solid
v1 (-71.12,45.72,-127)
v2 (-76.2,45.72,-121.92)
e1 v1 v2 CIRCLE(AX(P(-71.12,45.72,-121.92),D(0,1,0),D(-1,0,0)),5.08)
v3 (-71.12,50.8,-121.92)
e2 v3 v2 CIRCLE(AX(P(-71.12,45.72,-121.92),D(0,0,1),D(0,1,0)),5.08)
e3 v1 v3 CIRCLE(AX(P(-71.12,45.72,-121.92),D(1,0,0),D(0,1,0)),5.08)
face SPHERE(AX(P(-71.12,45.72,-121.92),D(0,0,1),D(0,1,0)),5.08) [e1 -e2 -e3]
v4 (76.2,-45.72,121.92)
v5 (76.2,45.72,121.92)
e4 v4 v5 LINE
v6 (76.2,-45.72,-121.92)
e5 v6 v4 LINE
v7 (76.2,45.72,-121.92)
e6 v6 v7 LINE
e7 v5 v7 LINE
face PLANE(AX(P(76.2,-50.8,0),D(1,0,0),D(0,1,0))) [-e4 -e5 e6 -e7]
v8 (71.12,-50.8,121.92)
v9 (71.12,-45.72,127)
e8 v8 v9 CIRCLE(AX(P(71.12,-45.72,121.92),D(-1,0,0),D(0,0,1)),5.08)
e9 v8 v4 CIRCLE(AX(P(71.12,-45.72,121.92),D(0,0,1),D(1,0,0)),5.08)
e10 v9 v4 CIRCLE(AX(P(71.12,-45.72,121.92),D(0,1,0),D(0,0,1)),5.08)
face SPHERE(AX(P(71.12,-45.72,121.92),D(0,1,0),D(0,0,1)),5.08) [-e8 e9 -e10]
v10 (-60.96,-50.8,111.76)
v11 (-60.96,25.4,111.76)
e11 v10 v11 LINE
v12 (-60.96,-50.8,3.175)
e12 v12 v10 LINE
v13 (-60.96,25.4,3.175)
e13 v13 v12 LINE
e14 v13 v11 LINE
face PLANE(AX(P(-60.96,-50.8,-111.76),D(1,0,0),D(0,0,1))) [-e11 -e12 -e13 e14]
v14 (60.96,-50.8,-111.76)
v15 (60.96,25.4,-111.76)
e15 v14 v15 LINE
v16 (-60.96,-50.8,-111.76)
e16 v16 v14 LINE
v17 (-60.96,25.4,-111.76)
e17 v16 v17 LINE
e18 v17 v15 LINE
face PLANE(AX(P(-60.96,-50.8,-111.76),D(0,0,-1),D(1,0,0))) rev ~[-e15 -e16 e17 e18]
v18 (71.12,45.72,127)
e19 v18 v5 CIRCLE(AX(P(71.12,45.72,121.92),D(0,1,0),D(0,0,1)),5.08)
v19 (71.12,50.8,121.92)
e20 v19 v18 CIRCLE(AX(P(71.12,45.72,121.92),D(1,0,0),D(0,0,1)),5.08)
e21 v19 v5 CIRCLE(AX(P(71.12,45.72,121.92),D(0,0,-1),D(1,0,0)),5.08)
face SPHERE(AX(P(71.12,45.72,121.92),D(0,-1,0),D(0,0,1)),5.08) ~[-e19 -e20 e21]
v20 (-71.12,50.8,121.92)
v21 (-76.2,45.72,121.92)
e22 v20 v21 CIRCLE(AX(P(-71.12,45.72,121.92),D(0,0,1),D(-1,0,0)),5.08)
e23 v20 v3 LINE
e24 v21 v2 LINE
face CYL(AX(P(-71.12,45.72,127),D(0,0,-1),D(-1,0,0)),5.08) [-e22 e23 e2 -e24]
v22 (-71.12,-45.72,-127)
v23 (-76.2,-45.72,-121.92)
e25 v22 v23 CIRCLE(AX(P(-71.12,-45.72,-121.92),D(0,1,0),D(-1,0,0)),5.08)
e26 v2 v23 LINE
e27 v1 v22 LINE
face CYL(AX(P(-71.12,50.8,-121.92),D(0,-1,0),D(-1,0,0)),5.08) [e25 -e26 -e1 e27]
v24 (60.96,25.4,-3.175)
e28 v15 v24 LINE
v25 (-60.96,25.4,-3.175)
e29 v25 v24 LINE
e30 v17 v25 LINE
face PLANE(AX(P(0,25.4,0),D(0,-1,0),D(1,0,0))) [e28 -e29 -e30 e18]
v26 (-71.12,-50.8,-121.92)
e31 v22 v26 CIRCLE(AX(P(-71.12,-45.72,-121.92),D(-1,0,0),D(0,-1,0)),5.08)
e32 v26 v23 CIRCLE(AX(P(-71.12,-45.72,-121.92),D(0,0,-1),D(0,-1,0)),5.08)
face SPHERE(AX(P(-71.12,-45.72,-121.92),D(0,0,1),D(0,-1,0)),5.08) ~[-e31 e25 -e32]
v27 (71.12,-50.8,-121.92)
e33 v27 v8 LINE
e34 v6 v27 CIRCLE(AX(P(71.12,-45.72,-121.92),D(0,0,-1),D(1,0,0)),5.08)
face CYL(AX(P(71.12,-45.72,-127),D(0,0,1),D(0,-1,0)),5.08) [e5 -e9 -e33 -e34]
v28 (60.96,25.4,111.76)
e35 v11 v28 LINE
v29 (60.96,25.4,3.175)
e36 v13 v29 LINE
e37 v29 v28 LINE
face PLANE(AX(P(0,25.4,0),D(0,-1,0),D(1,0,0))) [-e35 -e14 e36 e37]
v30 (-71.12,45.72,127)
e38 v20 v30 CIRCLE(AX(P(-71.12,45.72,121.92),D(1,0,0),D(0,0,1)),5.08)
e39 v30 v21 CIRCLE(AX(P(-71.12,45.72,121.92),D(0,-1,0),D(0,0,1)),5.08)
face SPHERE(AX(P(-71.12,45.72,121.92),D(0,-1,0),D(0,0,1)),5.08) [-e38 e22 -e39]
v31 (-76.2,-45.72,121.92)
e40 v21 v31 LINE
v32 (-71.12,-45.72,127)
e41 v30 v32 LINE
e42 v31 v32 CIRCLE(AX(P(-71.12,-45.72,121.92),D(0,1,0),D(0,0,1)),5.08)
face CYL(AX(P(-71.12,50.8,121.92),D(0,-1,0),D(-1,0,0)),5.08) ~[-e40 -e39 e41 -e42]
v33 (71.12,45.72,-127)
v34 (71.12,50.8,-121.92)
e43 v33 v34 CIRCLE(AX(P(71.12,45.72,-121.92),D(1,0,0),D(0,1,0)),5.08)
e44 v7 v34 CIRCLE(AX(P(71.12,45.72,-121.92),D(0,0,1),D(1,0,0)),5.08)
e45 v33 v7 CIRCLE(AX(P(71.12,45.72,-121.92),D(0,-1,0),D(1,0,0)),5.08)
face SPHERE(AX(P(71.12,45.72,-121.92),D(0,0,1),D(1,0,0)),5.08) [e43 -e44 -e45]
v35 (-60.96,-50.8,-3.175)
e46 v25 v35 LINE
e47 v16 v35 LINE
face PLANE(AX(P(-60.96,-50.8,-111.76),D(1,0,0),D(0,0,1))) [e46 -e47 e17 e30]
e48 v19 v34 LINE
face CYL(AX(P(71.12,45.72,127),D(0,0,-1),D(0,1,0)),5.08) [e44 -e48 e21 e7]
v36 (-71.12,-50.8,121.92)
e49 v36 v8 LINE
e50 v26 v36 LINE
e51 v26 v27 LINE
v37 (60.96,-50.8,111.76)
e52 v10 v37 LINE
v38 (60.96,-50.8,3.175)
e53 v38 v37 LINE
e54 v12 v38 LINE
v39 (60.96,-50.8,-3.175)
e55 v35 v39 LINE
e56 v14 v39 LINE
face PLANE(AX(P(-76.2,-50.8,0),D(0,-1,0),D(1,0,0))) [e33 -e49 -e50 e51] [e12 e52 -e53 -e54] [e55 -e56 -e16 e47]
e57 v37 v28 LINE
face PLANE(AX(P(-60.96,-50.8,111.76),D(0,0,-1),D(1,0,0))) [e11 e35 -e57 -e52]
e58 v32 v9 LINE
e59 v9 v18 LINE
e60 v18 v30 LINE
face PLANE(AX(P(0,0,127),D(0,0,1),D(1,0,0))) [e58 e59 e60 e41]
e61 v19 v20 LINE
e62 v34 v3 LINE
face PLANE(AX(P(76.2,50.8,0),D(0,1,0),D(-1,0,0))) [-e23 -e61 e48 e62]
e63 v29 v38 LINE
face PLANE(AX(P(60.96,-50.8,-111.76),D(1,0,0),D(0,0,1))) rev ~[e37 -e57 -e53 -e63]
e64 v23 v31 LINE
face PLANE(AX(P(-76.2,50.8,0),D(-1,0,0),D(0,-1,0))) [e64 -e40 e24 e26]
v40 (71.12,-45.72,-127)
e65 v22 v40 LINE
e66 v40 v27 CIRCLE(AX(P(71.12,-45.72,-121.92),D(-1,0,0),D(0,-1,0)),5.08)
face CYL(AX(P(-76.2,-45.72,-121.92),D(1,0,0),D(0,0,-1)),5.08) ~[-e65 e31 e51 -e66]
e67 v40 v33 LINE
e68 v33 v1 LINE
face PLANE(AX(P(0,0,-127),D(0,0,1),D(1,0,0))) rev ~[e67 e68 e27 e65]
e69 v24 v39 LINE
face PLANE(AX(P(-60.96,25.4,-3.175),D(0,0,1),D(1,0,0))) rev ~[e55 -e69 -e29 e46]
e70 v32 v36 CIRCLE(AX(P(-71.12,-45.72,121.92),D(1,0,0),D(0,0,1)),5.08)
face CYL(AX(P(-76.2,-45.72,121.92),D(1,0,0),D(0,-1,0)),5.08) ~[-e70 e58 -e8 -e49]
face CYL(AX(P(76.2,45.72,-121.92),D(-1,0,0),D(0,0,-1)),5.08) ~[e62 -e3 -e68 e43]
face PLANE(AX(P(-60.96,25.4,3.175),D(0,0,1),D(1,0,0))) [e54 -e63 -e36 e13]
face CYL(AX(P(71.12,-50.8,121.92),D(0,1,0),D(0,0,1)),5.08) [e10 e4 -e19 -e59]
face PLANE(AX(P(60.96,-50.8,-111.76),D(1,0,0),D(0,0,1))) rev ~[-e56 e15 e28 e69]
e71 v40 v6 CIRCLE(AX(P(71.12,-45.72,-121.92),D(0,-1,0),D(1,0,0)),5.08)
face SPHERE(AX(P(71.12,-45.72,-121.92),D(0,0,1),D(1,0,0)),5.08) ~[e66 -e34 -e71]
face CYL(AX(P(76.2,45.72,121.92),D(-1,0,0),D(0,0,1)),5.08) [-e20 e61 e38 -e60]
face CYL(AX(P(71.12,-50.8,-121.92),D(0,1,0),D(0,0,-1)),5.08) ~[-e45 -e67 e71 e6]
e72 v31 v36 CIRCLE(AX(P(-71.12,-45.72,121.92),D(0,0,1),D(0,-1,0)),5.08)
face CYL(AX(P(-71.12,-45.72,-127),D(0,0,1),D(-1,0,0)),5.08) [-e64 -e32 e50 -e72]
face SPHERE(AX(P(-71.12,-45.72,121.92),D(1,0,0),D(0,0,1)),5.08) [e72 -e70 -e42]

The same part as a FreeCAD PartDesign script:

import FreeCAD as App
import Part
import Sketcher
from FreeCAD import Vector
Q = App.Units.Quantity


def edges_at(feature, points):
    """Names of the edges that pass closest to the given points."""
    edges = feature.Shape.Edges
    near = lambda p: min(range(len(edges)), key=lambda i: edges[i].distToShape(Part.Vertex(*p))[0])
    return sorted({f"Edge{near(p) + 1}" for p in points})


def add_polygon(sketch, points):
    """Adds a closed chain of lines whose ends are joined by coincident constraints."""
    first, n = sketch.GeometryCount, len(points)
    for a, b in zip(points, points[1:] + points[:1]):
        sketch.addGeometry(Part.LineSegment(App.Vector(*a, 0), App.Vector(*b, 0)), False)
    for i in range(n):
        sketch.addConstraint(Sketcher.Constraint("Coincident", first + i, 2, first + (i + 1) % n, 1))

doc = App.newDocument("Part")
body = doc.addObject("PartDesign::Body", "Body")

# Sketch on XY plane
sketch1 = body.newObject("Sketcher::SketchObject", "Sketch")
sketch1.AttachmentSupport = (doc.getObject("XY_Plane"), [""])
sketch1.MapMode = "FlatFace"
add_polygon(sketch1, [(-76.2, 50.8), (-76.2, -50.8), (76.2, -50.8), (76.2, 50.8)])  # lines 0-3
sketch1.addConstraint([
    Sketcher.Constraint("Vertical", 0),
    Sketcher.Constraint("Horizontal", 1),
    Sketcher.Constraint("Vertical", 2),
    Sketcher.Constraint("Horizontal", 3),
    Sketcher.Constraint("Symmetric", 0, 2, 2, 2, -1, 1),
    Sketcher.Constraint("DistanceX", 1, 1, 1, 2, Q("6 in")),
    Sketcher.Constraint("DistanceY", 0, 2, 0, 1, Q("4 in")),
])
pad1 = body.newObject("PartDesign::Pad", "Pad")
pad1.Profile = sketch1
pad1.Length = Q("10 in")
pad1.Midplane = True

# Sketch on XZ plane
sketch2 = body.newObject("Sketcher::SketchObject", "Sketch001")
sketch2.AttachmentSupport = (doc.getObject("XZ_Plane"), [""])
sketch2.MapMode = "FlatFace"
sketch2.AttachmentOffset = App.Placement(Vector(0, 0, 2 * 25.4), App.Rotation())
add_polygon(sketch2, [(-60.96, 111.76), (-60.96, -111.76), (60.96, -111.76), (60.96, 111.76)])  # lines 0-3
sketch2.addConstraint([
    Sketcher.Constraint("Vertical", 0),
    Sketcher.Constraint("Horizontal", 1),
    Sketcher.Constraint("Vertical", 2),
    Sketcher.Constraint("Horizontal", 3),
    Sketcher.Constraint("Symmetric", 0, 2, 2, 2, -1, 1),
    Sketcher.Constraint("DistanceX", 1, 1, 1, 2, Q("4.8 in")),
    Sketcher.Constraint("DistanceY", 0, 2, 0, 1, Q("8.8 in")),
])
pocket1 = body.newObject("PartDesign::Pocket", "Pocket")
pocket1.Profile = sketch2
pocket1.Length = Q("3 in")
doc.recompute()

fillet = body.newObject("PartDesign::Fillet", "Fillet")
fillet.Base = (pocket1, edges_at(pocket1, [
    (76.2, 0, 127),
    (0, -50.8, 127),
    (-76.2, 0, 127),
    (0, 50.8, 127),
    (76.2, -50.8, 0),
    (-76.2, -50.8, 0),
    (76.2, 50.8, 0),
    (76.2, 0, -127),
    (0, -50.8, -127),
    (-76.2, 50.8, 0),
    (0, 50.8, -127),
    (-76.2, 0, -127),
]))
fillet.Radius = Q("0.2 in")

# Sketch on XZ plane
sketch3 = body.newObject("Sketcher::SketchObject", "Sketch002")
sketch3.AttachmentSupport = (doc.getObject("XZ_Plane"), [""])
sketch3.MapMode = "FlatFace"
sketch3.AttachmentOffset = App.Placement(Vector(0, 0, -1 * 25.4), App.Rotation())
add_polygon(sketch3, [(-60.96, 3.175), (-60.96, -3.175), (60.96, -3.175), (60.96, 3.175)])  # lines 0-3
sketch3.addConstraint([
    Sketcher.Constraint("Vertical", 0),
    Sketcher.Constraint("Horizontal", 1),
    Sketcher.Constraint("Vertical", 2),
    Sketcher.Constraint("Horizontal", 3),
    Sketcher.Constraint("Symmetric", 0, 2, 2, 2, -1, 1),
    Sketcher.Constraint("DistanceX", 1, 1, 1, 2, Q("4.8 in")),
    Sketcher.Constraint("DistanceY", 0, 2, 0, 1, Q("0.25 in")),
])
pad2 = body.newObject("PartDesign::Pad", "Pad001")
pad2.Profile = sketch3
pad2.Length = Q("3 in")

doc.recompute()
